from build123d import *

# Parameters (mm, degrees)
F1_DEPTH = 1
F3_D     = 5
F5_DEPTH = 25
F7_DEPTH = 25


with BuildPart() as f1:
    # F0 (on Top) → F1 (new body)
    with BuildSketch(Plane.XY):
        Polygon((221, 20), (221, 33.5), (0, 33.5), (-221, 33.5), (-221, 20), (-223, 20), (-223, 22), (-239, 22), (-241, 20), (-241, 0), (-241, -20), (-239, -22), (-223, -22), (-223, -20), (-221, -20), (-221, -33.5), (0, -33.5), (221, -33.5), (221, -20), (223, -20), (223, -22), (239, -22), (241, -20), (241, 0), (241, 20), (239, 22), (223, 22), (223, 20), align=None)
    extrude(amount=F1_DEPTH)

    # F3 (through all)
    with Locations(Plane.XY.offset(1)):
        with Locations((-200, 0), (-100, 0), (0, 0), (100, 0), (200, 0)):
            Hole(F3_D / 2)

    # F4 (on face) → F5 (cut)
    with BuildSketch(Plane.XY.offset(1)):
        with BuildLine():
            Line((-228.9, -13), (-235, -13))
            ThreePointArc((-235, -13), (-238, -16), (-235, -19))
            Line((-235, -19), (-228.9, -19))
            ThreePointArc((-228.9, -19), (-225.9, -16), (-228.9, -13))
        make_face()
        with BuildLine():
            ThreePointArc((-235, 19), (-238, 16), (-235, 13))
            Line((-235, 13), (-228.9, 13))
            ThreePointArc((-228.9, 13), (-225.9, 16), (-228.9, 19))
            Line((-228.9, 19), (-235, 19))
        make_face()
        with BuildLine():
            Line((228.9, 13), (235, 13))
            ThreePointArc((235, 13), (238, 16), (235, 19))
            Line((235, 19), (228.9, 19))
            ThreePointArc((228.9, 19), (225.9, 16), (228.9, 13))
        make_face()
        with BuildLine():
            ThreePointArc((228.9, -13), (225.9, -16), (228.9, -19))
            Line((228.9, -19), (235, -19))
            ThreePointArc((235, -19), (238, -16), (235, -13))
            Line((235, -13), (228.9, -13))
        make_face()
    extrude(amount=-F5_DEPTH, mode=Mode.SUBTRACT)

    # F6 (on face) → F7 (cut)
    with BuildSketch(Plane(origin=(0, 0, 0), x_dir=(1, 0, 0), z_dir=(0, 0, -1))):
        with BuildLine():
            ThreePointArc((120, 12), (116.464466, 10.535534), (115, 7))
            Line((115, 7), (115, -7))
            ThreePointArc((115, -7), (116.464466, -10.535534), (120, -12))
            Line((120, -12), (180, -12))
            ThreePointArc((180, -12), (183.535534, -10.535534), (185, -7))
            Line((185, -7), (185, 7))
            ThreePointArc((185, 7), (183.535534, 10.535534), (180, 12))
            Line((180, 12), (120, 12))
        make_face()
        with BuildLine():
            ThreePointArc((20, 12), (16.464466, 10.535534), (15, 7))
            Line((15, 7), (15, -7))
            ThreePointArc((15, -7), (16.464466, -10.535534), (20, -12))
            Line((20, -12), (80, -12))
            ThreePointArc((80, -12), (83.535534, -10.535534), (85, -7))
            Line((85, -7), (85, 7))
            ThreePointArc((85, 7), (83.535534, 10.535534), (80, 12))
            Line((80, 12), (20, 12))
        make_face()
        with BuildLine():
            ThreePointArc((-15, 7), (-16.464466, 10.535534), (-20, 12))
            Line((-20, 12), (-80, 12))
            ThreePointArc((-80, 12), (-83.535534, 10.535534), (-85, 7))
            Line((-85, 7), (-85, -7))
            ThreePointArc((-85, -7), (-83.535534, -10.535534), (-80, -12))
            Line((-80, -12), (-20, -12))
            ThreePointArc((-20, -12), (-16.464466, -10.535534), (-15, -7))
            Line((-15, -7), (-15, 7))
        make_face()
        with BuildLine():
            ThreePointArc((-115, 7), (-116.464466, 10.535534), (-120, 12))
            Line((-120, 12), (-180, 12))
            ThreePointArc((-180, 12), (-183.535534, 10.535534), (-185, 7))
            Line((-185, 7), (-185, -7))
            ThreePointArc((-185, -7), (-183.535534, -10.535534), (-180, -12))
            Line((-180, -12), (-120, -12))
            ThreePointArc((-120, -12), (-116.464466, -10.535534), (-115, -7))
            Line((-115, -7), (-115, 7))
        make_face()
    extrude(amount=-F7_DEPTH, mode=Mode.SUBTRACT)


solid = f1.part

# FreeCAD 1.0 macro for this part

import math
import FreeCAD as App
import Part
import Sketcher


def add_polygon(sketch, points):
    """Adds a closed chain of lines whose ends are joined by coincident constraints."""
    first, n = sketch.GeometryCount, len(points)
    for a, b in zip(points, points[1:] + points[:1]):
        sketch.addGeometry(Part.LineSegment(App.Vector(*a, 0), App.Vector(*b, 0)), False)
    for i in range(n):
        sketch.addConstraint(Sketcher.Constraint("Coincident", first + i, 2, first + (i + 1) % n, 1))

doc = App.newDocument("Part")
body = doc.addObject("PartDesign::Body", "Body")

# Sketch on XY plane
sketch1 = body.newObject("Sketcher::SketchObject", "Sketch")
sketch1.AttachmentSupport = (doc.getObject("XY_Plane"), [""])
sketch1.MapMode = "FlatFace"
add_polygon(sketch1, [(221, 20), (221, 33.5), (-221, 33.5), (-221, 20), (-223, 20), (-223, 22), (-239, 22), (-241, 20), (-241, -20), (-239, -22), (-223, -22), (-223, -20), (-221, -20), (-221, -33.5), (221, -33.5), (221, -20), (223, -20), (223, -22), (239, -22), (241, -20), (241, 20), (239, 22), (223, 22), (223, 20)])  # lines 0-23
sketch1.addConstraint([
    Sketcher.Constraint("Vertical", 0),
    Sketcher.Constraint("Horizontal", 1),
    Sketcher.Constraint("Vertical", 2),
    Sketcher.Constraint("Horizontal", 3),
    Sketcher.Constraint("Vertical", 4),
    Sketcher.Constraint("Horizontal", 5),
    Sketcher.Constraint("Vertical", 7),
    Sketcher.Constraint("Horizontal", 9),
    Sketcher.Constraint("Vertical", 10),
    Sketcher.Constraint("Horizontal", 11),
    Sketcher.Constraint("Vertical", 12),
    Sketcher.Constraint("Horizontal", 13),
    Sketcher.Constraint("Vertical", 14),
    Sketcher.Constraint("Horizontal", 15),
    Sketcher.Constraint("Vertical", 16),
    Sketcher.Constraint("Horizontal", 17),
    Sketcher.Constraint("Vertical", 19),
    Sketcher.Constraint("Horizontal", 21),
    Sketcher.Constraint("Vertical", 22),
    Sketcher.Constraint("Horizontal", 23),
    Sketcher.Constraint("Symmetric", 0, 2, 12, 2, -1, 1),
    Sketcher.Constraint("Symmetric", 2, 2, 14, 2, -1, 1),
    Sketcher.Constraint("Symmetric", 4, 2, 16, 2, -1, 1),
    Sketcher.Constraint("Symmetric", 6, 2, 18, 2, -1, 1),
    Sketcher.Constraint("Symmetric", 8, 2, 20, 2, -1, 1),
    Sketcher.Constraint("Symmetric", 10, 2, 22, 2, -1, 1),
    Sketcher.Constraint("Symmetric", 11, 2, 14, 2, -2),
    Sketcher.Constraint("Symmetric", 9, 2, 16, 2, -2),
    Sketcher.Constraint("Perpendicular", 6, 8),
    Sketcher.Constraint("Perpendicular", 8, 18),
    Sketcher.Constraint("Perpendicular", 18, 20),
    Sketcher.Constraint("Horizontal", 3, 2, 6, 2),
    Sketcher.Constraint("Horizontal", 7, 2, 10, 2),
    Sketcher.Constraint("Vertical", 5, 2, 8, 2),
    Sketcher.Constraint("Equal", 23, 4),
    Sketcher.Constraint("DistanceX", 1, 2, 1, 1, 442.0),
    Sketcher.Constraint("DistanceX", 3, 2, 3, 1, 2.0),
    Sketcher.Constraint("DistanceX", 5, 2, 5, 1, 16.0),
    Sketcher.Constraint("DistanceY", 7, 2, 7, 1, 40.0),
    Sketcher.Constraint("DistanceY", 0, 1, 0, 2, 13.5),
])
pad1 = body.newObject("PartDesign::Pad", "Pad")
pad1.Profile = sketch1
pad1.Length = 1

# Sketch on XY plane
sketch2 = body.newObject("Sketcher::SketchObject", "Sketch001")
sketch2.AttachmentSupport = (doc.getObject("XY_Plane"), [""])
sketch2.MapMode = "FlatFace"
sketch2.AttachmentOffset = App.Placement(App.Vector(0, 0, 1), App.Rotation())
sketch2.addGeometry([
    Part.Circle(App.Vector(-200, 0, 0), App.Vector(0, 0, 1), 2.5),  # 0
    Part.Circle(App.Vector(-100, 0, 0), App.Vector(0, 0, 1), 2.5),  # 1
    Part.Circle(App.Vector(0, 0, 0), App.Vector(0, 0, 1), 2.5),  # 2
    Part.Circle(App.Vector(100, 0, 0), App.Vector(0, 0, 1), 2.5),  # 3
    Part.Circle(App.Vector(200, 0, 0), App.Vector(0, 0, 1), 2.5),  # 4
], False)
sketch2.addConstraint([
    Sketcher.Constraint("Coincident", 2, 3, -1, 1),
    Sketcher.Constraint("Equal", 0, 1),
    Sketcher.Constraint("Equal", 1, 2),
    Sketcher.Constraint("Equal", 2, 3),
    Sketcher.Constraint("Equal", 3, 4),
    Sketcher.Constraint("Symmetric", 1, 3, 3, 3, -1, 1),
    Sketcher.Constraint("Symmetric", 0, 3, 4, 3, -1, 1),
    Sketcher.Constraint("PointOnObject", 0, 3, -1),
    Sketcher.Constraint("PointOnObject", 1, 3, -1),
    Sketcher.Constraint("Diameter", 0, 5.0),
    Sketcher.Constraint("DistanceX", 0, 3, -1, 1, 200.0),
    Sketcher.Constraint("DistanceX", 1, 3, -1, 1, 100.0),
])
doc.recompute()
hole = body.newObject("PartDesign::Hole", "Hole")
hole.Profile = sketch2
hole.ThreadType = "None"
hole.Diameter = 5
hole.DepthType = "ThroughAll"

# Sketch on XY plane
sketch3 = body.newObject("Sketcher::SketchObject", "Sketch002")
sketch3.AttachmentSupport = (doc.getObject("XY_Plane"), [""])
sketch3.MapMode = "FlatFace"
sketch3.AttachmentOffset = App.Placement(App.Vector(0, 0, 1), App.Rotation())
sketch3.addGeometry([
    Part.LineSegment(App.Vector(-228.9, -13, 0), App.Vector(-235, -13, 0)),  # 0
    Part.ArcOfCircle(Part.Circle(App.Vector(-235, -16, 0), App.Vector(0, 0, 1), 3), math.radians(90), math.radians(270)),  # 1
    Part.LineSegment(App.Vector(-235, -19, 0), App.Vector(-228.9, -19, 0)),  # 2
    Part.ArcOfCircle(Part.Circle(App.Vector(-228.9, -16, 0), App.Vector(0, 0, 1), 3), math.radians(-90), math.radians(90)),  # 3
    Part.ArcOfCircle(Part.Circle(App.Vector(-235, 16, 0), App.Vector(0, 0, 1), 3), math.radians(90), math.radians(270)),  # 4
    Part.LineSegment(App.Vector(-235, 13, 0), App.Vector(-228.9, 13, 0)),  # 5
    Part.ArcOfCircle(Part.Circle(App.Vector(-228.9, 16, 0), App.Vector(0, 0, 1), 3), math.radians(-90), math.radians(90)),  # 6
    Part.LineSegment(App.Vector(-228.9, 19, 0), App.Vector(-235, 19, 0)),  # 7
    Part.LineSegment(App.Vector(228.9, 13, 0), App.Vector(235, 13, 0)),  # 8
    Part.ArcOfCircle(Part.Circle(App.Vector(235, 16, 0), App.Vector(0, 0, 1), 3), math.radians(-90), math.radians(90)),  # 9
    Part.LineSegment(App.Vector(235, 19, 0), App.Vector(228.9, 19, 0)),  # 10
    Part.ArcOfCircle(Part.Circle(App.Vector(228.9, 16, 0), App.Vector(0, 0, 1), 3), math.radians(90), math.radians(270)),  # 11
    Part.ArcOfCircle(Part.Circle(App.Vector(228.9, -16, 0), App.Vector(0, 0, 1), 3), math.radians(90), math.radians(270)),  # 12
    Part.LineSegment(App.Vector(228.9, -19, 0), App.Vector(235, -19, 0)),  # 13
    Part.ArcOfCircle(Part.Circle(App.Vector(235, -16, 0), App.Vector(0, 0, 1), 3), math.radians(-90), math.radians(90)),  # 14
    Part.LineSegment(App.Vector(235, -13, 0), App.Vector(228.9, -13, 0)),  # 15
], False)
sketch3.addConstraint([
    Sketcher.Constraint("Tangent", 0, 2, 1, 1),
    Sketcher.Constraint("Tangent", 1, 2, 2, 1),
    Sketcher.Constraint("Tangent", 2, 2, 3, 1),
    Sketcher.Constraint("Tangent", 3, 2, 0, 1),
    Sketcher.Constraint("Tangent", 4, 2, 5, 1),
    Sketcher.Constraint("Tangent", 5, 2, 6, 1),
    Sketcher.Constraint("Tangent", 6, 2, 7, 1),
    Sketcher.Constraint("Tangent", 7, 2, 4, 1),
    Sketcher.Constraint("Tangent", 8, 2, 9, 1),
    Sketcher.Constraint("Tangent", 9, 2, 10, 1),
    Sketcher.Constraint("Tangent", 10, 2, 11, 1),
    Sketcher.Constraint("Tangent", 11, 2, 8, 1),
    Sketcher.Constraint("Tangent", 12, 2, 13, 1),
    Sketcher.Constraint("Tangent", 13, 2, 14, 1),
    Sketcher.Constraint("Tangent", 14, 2, 15, 1),
    Sketcher.Constraint("Tangent", 15, 2, 12, 1),
    Sketcher.Constraint("Horizontal", 0),
    Sketcher.Constraint("Horizontal", 2),
    Sketcher.Constraint("Horizontal", 5),
    Sketcher.Constraint("Horizontal", 7),
    Sketcher.Constraint("Horizontal", 8),
    Sketcher.Constraint("Horizontal", 10),
    Sketcher.Constraint("Horizontal", 13),
    Sketcher.Constraint("Horizontal", 15),
    Sketcher.Constraint("Equal", 3, 4),
    Sketcher.Constraint("Equal", 6, 9),
    Sketcher.Constraint("Equal", 11, 12),
    Sketcher.Constraint("Symmetric", 1, 3, 9, 3, -1, 1),
    Sketcher.Constraint("Symmetric", 6, 3, 12, 3, -1, 1),
    Sketcher.Constraint("Symmetric", 4, 3, 9, 3, -2),
    Sketcher.Constraint("Vertical", 3, 3, 6, 3),
    Sketcher.Constraint("Vertical", 11, 3, 12, 3),
    Sketcher.Constraint("Vertical", 9, 3, 14, 3),
    Sketcher.Constraint("Radius", 1, 3.0),
    Sketcher.Constraint("DistanceX", 0, 2, 0, 1, 6.1),
    Sketcher.Constraint("DistanceX", 1, 3, -1, 1, 235.0),
    Sketcher.Constraint("DistanceY", 1, 3, -1, 1, 16.0),
])
pocket1 = body.newObject("PartDesign::Pocket", "Pocket")
pocket1.Profile = sketch3
pocket1.Length = 25

# Sketch on XY plane
sketch4 = body.newObject("Sketcher::SketchObject", "Sketch003")
sketch4.AttachmentSupport = (doc.getObject("XY_Plane"), [""])
sketch4.MapMode = "FlatFace"
sketch4.addGeometry([
    Part.ArcOfCircle(Part.Circle(App.Vector(120, -7, 0), App.Vector(0, 0, 1), 5), math.radians(180), math.radians(270)),  # 0
    Part.LineSegment(App.Vector(115, -7, 0), App.Vector(115, 7, 0)),  # 1
    Part.ArcOfCircle(Part.Circle(App.Vector(120, 7, 0), App.Vector(0, 0, 1), 5), math.radians(90), math.radians(180)),  # 2
    Part.LineSegment(App.Vector(120, 12, 0), App.Vector(180, 12, 0)),  # 3
    Part.ArcOfCircle(Part.Circle(App.Vector(180, 7, 0), App.Vector(0, 0, 1), 5), math.radians(0), math.radians(90)),  # 4
    Part.LineSegment(App.Vector(185, 7, 0), App.Vector(185, -7, 0)),  # 5
    Part.ArcOfCircle(Part.Circle(App.Vector(180, -7, 0), App.Vector(0, 0, 1), 5), math.radians(-90), math.radians(0)),  # 6
    Part.LineSegment(App.Vector(180, -12, 0), App.Vector(120, -12, 0)),  # 7
    Part.ArcOfCircle(Part.Circle(App.Vector(20, -7, 0), App.Vector(0, 0, 1), 5), math.radians(180), math.radians(270)),  # 8
    Part.LineSegment(App.Vector(15, -7, 0), App.Vector(15, 7, 0)),  # 9
    Part.ArcOfCircle(Part.Circle(App.Vector(20, 7, 0), App.Vector(0, 0, 1), 5), math.radians(90), math.radians(180)),  # 10
    Part.LineSegment(App.Vector(20, 12, 0), App.Vector(80, 12, 0)),  # 11
    Part.ArcOfCircle(Part.Circle(App.Vector(80, 7, 0), App.Vector(0, 0, 1), 5), math.radians(0), math.radians(90)),  # 12
    Part.LineSegment(App.Vector(85, 7, 0), App.Vector(85, -7, 0)),  # 13
    Part.ArcOfCircle(Part.Circle(App.Vector(80, -7, 0), App.Vector(0, 0, 1), 5), math.radians(-90), math.radians(0)),  # 14
    Part.LineSegment(App.Vector(80, -12, 0), App.Vector(20, -12, 0)),  # 15
    Part.ArcOfCircle(Part.Circle(App.Vector(-20, -7, 0), App.Vector(0, 0, 1), 5), math.radians(-90), math.radians(0)),  # 16
    Part.LineSegment(App.Vector(-20, -12, 0), App.Vector(-80, -12, 0)),  # 17
    Part.ArcOfCircle(Part.Circle(App.Vector(-80, -7, 0), App.Vector(0, 0, 1), 5), math.radians(180), math.radians(270)),  # 18
    Part.LineSegment(App.Vector(-85, -7, 0), App.Vector(-85, 7, 0)),  # 19
    Part.ArcOfCircle(Part.Circle(App.Vector(-80, 7, 0), App.Vector(0, 0, 1), 5), math.radians(90), math.radians(180)),  # 20
    Part.LineSegment(App.Vector(-80, 12, 0), App.Vector(-20, 12, 0)),  # 21
    Part.ArcOfCircle(Part.Circle(App.Vector(-20, 7, 0), App.Vector(0, 0, 1), 5), math.radians(0), math.radians(90)),  # 22
    Part.LineSegment(App.Vector(-15, 7, 0), App.Vector(-15, -7, 0)),  # 23
    Part.ArcOfCircle(Part.Circle(App.Vector(-120, -7, 0), App.Vector(0, 0, 1), 5), math.radians(-90), math.radians(0)),  # 24
    Part.LineSegment(App.Vector(-120, -12, 0), App.Vector(-180, -12, 0)),  # 25
    Part.ArcOfCircle(Part.Circle(App.Vector(-180, -7, 0), App.Vector(0, 0, 1), 5), math.radians(180), math.radians(270)),  # 26
    Part.LineSegment(App.Vector(-185, -7, 0), App.Vector(-185, 7, 0)),  # 27
    Part.ArcOfCircle(Part.Circle(App.Vector(-180, 7, 0), App.Vector(0, 0, 1), 5), math.radians(90), math.radians(180)),  # 28
    Part.LineSegment(App.Vector(-180, 12, 0), App.Vector(-120, 12, 0)),  # 29
    Part.ArcOfCircle(Part.Circle(App.Vector(-120, 7, 0), App.Vector(0, 0, 1), 5), math.radians(0), math.radians(90)),  # 30
    Part.LineSegment(App.Vector(-115, 7, 0), App.Vector(-115, -7, 0)),  # 31
], False)
sketch4.addConstraint([
    Sketcher.Constraint("Tangent", 0, 1, 1, 1),
    Sketcher.Constraint("Tangent", 1, 2, 2, 2),
    Sketcher.Constraint("Tangent", 2, 1, 3, 1),
    Sketcher.Constraint("Tangent", 3, 2, 4, 2),
    Sketcher.Constraint("Tangent", 4, 1, 5, 1),
    Sketcher.Constraint("Tangent", 5, 2, 6, 2),
    Sketcher.Constraint("Tangent", 6, 1, 7, 1),
    Sketcher.Constraint("Tangent", 7, 2, 0, 2),
    Sketcher.Constraint("Tangent", 8, 1, 9, 1),
    Sketcher.Constraint("Tangent", 9, 2, 10, 2),
    Sketcher.Constraint("Tangent", 10, 1, 11, 1),
    Sketcher.Constraint("Tangent", 11, 2, 12, 2),
    Sketcher.Constraint("Tangent", 12, 1, 13, 1),
    Sketcher.Constraint("Tangent", 13, 2, 14, 2),
    Sketcher.Constraint("Tangent", 14, 1, 15, 1),
    Sketcher.Constraint("Tangent", 15, 2, 8, 2),
    Sketcher.Constraint("Tangent", 16, 1, 17, 1),
    Sketcher.Constraint("Tangent", 17, 2, 18, 2),
    Sketcher.Constraint("Tangent", 18, 1, 19, 1),
    Sketcher.Constraint("Tangent", 19, 2, 20, 2),
    Sketcher.Constraint("Tangent", 20, 1, 21, 1),
    Sketcher.Constraint("Tangent", 21, 2, 22, 2),
    Sketcher.Constraint("Tangent", 22, 1, 23, 1),
    Sketcher.Constraint("Tangent", 23, 2, 16, 2),
    Sketcher.Constraint("Tangent", 24, 1, 25, 1),
    Sketcher.Constraint("Tangent", 25, 2, 26, 2),
    Sketcher.Constraint("Tangent", 26, 1, 27, 1),
    Sketcher.Constraint("Tangent", 27, 2, 28, 2),
    Sketcher.Constraint("Tangent", 28, 1, 29, 1),
    Sketcher.Constraint("Tangent", 29, 2, 30, 2),
    Sketcher.Constraint("Tangent", 30, 1, 31, 1),
    Sketcher.Constraint("Tangent", 31, 2, 24, 2),
    Sketcher.Constraint("Vertical", 1),
    Sketcher.Constraint("Horizontal", 3),
    Sketcher.Constraint("Vertical", 5),
    Sketcher.Constraint("Horizontal", 7),
    Sketcher.Constraint("Vertical", 9),
    Sketcher.Constraint("Horizontal", 11),
    Sketcher.Constraint("Vertical", 13),
    Sketcher.Constraint("Horizontal", 15),
    Sketcher.Constraint("Horizontal", 17),
    Sketcher.Constraint("Vertical", 19),
    Sketcher.Constraint("Horizontal", 21),
    Sketcher.Constraint("Vertical", 23),
    Sketcher.Constraint("Horizontal", 25),
    Sketcher.Constraint("Vertical", 27),
    Sketcher.Constraint("Horizontal", 29),
    Sketcher.Constraint("Vertical", 31),
    Sketcher.Constraint("Equal", 0, 2),
    Sketcher.Constraint("Equal", 2, 4),
    Sketcher.Constraint("Equal", 4, 6),
    Sketcher.Constraint("Equal", 6, 8),
    Sketcher.Constraint("Equal", 8, 10),
    Sketcher.Constraint("Equal", 10, 12),
    Sketcher.Constraint("Equal", 12, 14),
    Sketcher.Constraint("Equal", 14, 16),
    Sketcher.Constraint("Equal", 16, 18),
    Sketcher.Constraint("Equal", 18, 20),
    Sketcher.Constraint("Equal", 20, 22),
    Sketcher.Constraint("Equal", 22, 24),
    Sketcher.Constraint("Equal", 24, 26),
    Sketcher.Constraint("Equal", 26, 28),
    Sketcher.Constraint("Equal", 28, 30),
    Sketcher.Constraint("Symmetric", 10, 3, 16, 3, -1, 1),
    Sketcher.Constraint("Symmetric", 14, 3, 20, 3, -1, 1),
    Sketcher.Constraint("Symmetric", 2, 3, 24, 3, -1, 1),
    Sketcher.Constraint("Symmetric", 6, 3, 28, 3, -1, 1),
    Sketcher.Constraint("Horizontal", 6, 3, 8, 3),
    Sketcher.Constraint("Horizontal", 4, 3, 10, 3),
    Sketcher.Constraint("Horizontal", 14, 3, 16, 3),
    Sketcher.Constraint("Equal", 7, 11),
    Sketcher.Constraint("Radius", 0, 5.0),
    Sketcher.Constraint("DistanceX", 3, 1, 3, 2, 60.0),
    Sketcher.Constraint("DistanceY", 1, 1, 1, 2, 14.0),
    Sketcher.Constraint("DistanceX", -1, 1, 0, 3, 120.0),
    Sketcher.Constraint("DistanceX", -1, 1, 8, 3, 20.0),
])
pocket2 = body.newObject("PartDesign::Pocket", "Pocket001")
pocket2.Profile = sketch4
pocket2.Length = 25
pocket2.Reversed = True

doc.recompute()
